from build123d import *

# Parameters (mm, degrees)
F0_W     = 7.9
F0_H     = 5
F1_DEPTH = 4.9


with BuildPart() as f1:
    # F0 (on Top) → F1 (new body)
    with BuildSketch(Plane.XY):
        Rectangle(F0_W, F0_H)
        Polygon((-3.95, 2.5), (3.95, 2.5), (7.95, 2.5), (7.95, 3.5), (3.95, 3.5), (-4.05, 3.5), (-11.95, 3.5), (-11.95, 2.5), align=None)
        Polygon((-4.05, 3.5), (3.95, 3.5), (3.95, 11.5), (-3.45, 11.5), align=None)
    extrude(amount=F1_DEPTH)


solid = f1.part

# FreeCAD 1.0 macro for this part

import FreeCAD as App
import Part
import Sketcher
from FreeCAD import Vector
Q = App.Units.Quantity

doc = App.newDocument("Part")
body = doc.addObject("PartDesign::Body", "Body")

sketch1 = doc.addObject("Sketcher::SketchObject", "Sketch")
body.addObject(sketch1)
sketch1.AttachmentSupport = (doc.XY_Plane, [""])
sketch1.MapMode = "FlatFace"
sketch1.addGeometry(Part.LineSegment(Vector(-3.95, 2.5, 0), Vector(-3.95, -2.5, 0)), False)
sketch1.addGeometry(Part.LineSegment(Vector(-3.95, -2.5, 0), Vector(3.95, -2.5, 0)), False)
sketch1.addGeometry(Part.LineSegment(Vector(3.95, -2.5, 0), Vector(3.95, 2.5, 0)), False)
sketch1.addGeometry(Part.LineSegment(Vector(3.95, 2.5, 0), Vector(7.95, 2.5, 0)), False)
sketch1.addGeometry(Part.LineSegment(Vector(7.95, 2.5, 0), Vector(7.95, 3.5, 0)), False)
sketch1.addGeometry(Part.LineSegment(Vector(7.95, 3.5, 0), Vector(3.95, 3.5, 0)), False)
sketch1.addGeometry(Part.LineSegment(Vector(3.95, 3.5, 0), Vector(3.95, 11.5, 0)), False)
sketch1.addGeometry(Part.LineSegment(Vector(3.95, 11.5, 0), Vector(-3.45, 11.5, 0)), False)
sketch1.addGeometry(Part.LineSegment(Vector(-3.45, 11.5, 0), Vector(-4.05, 3.5, 0)), False)
sketch1.addGeometry(Part.LineSegment(Vector(-4.05, 3.5, 0), Vector(-11.95, 3.5, 0)), False)
sketch1.addGeometry(Part.LineSegment(Vector(-11.95, 3.5, 0), Vector(-11.95, 2.5, 0)), False)
sketch1.addGeometry(Part.LineSegment(Vector(-11.95, 2.5, 0), Vector(-3.95, 2.5, 0)), False)
sketch1.addConstraint(Sketcher.Constraint("Coincident", 0, 2, 1, 1))
sketch1.addConstraint(Sketcher.Constraint("Coincident", 1, 2, 2, 1))
sketch1.addConstraint(Sketcher.Constraint("Coincident", 2, 2, 3, 1))
sketch1.addConstraint(Sketcher.Constraint("Coincident", 3, 2, 4, 1))
sketch1.addConstraint(Sketcher.Constraint("Coincident", 4, 2, 5, 1))
sketch1.addConstraint(Sketcher.Constraint("Coincident", 5, 2, 6, 1))
sketch1.addConstraint(Sketcher.Constraint("Coincident", 6, 2, 7, 1))
sketch1.addConstraint(Sketcher.Constraint("Coincident", 7, 2, 8, 1))
sketch1.addConstraint(Sketcher.Constraint("Coincident", 8, 2, 9, 1))
sketch1.addConstraint(Sketcher.Constraint("Coincident", 9, 2, 10, 1))
sketch1.addConstraint(Sketcher.Constraint("Coincident", 10, 2, 11, 1))
sketch1.addConstraint(Sketcher.Constraint("Coincident", 11, 2, 0, 1))
sketch1.addConstraint(Sketcher.Constraint("Vertical", 0))
sketch1.addConstraint(Sketcher.Constraint("Horizontal", 1))
sketch1.addConstraint(Sketcher.Constraint("Vertical", 2))
sketch1.addConstraint(Sketcher.Constraint("Horizontal", 3))
sketch1.addConstraint(Sketcher.Constraint("Vertical", 4))
sketch1.addConstraint(Sketcher.Constraint("Horizontal", 5))
sketch1.addConstraint(Sketcher.Constraint("Vertical", 6))
sketch1.addConstraint(Sketcher.Constraint("Horizontal", 7))
sketch1.addConstraint(Sketcher.Constraint("Horizontal", 9))
sketch1.addConstraint(Sketcher.Constraint("Vertical", 10))
sketch1.addConstraint(Sketcher.Constraint("Horizontal", 11))
sketch1.addConstraint(Sketcher.Constraint("Symmetric", 0, 2, 2, 2, -1, 1))
sketch1.addConstraint(Sketcher.Constraint("Horizontal", 5, 2, 8, 2))
sketch1.addConstraint(Sketcher.Constraint("Horizontal", 3, 2, 10, 2))
sketch1.addConstraint(Sketcher.Constraint("Vertical", 2, 2, 5, 2))
sketch1.addConstraint(Sketcher.Constraint("Equal", 1, 9))
sketch1.addConstraint(Sketcher.Constraint("Equal", 11, 6))
sketch1.addConstraint(Sketcher.Constraint("DistanceX", 3, 1, 3, 2, Q("4 mm")))
sketch1.addConstraint(Sketcher.Constraint("DistanceX", 11, 1, 11, 2, Q("8 mm")))
sketch1.addConstraint(Sketcher.Constraint("DistanceY", 0, 2, 0, 1, Q("5 mm")))
sketch1.addConstraint(Sketcher.Constraint("DistanceY", 4, 1, 4, 2, Q("1 mm")))
sketch1.addConstraint(Sketcher.Constraint("DistanceX", 1, 1, 1, 2, Q("7.9 mm")))
sketch1.addConstraint(Sketcher.Constraint("DistanceX", 7, 2, 7, 1, Q("7.4 mm")))
pad1 = doc.addObject("PartDesign::Pad", "Pad")
body.addObject(pad1)
pad1.Profile = sketch1
pad1.Length = 4.9

doc.recompute()
